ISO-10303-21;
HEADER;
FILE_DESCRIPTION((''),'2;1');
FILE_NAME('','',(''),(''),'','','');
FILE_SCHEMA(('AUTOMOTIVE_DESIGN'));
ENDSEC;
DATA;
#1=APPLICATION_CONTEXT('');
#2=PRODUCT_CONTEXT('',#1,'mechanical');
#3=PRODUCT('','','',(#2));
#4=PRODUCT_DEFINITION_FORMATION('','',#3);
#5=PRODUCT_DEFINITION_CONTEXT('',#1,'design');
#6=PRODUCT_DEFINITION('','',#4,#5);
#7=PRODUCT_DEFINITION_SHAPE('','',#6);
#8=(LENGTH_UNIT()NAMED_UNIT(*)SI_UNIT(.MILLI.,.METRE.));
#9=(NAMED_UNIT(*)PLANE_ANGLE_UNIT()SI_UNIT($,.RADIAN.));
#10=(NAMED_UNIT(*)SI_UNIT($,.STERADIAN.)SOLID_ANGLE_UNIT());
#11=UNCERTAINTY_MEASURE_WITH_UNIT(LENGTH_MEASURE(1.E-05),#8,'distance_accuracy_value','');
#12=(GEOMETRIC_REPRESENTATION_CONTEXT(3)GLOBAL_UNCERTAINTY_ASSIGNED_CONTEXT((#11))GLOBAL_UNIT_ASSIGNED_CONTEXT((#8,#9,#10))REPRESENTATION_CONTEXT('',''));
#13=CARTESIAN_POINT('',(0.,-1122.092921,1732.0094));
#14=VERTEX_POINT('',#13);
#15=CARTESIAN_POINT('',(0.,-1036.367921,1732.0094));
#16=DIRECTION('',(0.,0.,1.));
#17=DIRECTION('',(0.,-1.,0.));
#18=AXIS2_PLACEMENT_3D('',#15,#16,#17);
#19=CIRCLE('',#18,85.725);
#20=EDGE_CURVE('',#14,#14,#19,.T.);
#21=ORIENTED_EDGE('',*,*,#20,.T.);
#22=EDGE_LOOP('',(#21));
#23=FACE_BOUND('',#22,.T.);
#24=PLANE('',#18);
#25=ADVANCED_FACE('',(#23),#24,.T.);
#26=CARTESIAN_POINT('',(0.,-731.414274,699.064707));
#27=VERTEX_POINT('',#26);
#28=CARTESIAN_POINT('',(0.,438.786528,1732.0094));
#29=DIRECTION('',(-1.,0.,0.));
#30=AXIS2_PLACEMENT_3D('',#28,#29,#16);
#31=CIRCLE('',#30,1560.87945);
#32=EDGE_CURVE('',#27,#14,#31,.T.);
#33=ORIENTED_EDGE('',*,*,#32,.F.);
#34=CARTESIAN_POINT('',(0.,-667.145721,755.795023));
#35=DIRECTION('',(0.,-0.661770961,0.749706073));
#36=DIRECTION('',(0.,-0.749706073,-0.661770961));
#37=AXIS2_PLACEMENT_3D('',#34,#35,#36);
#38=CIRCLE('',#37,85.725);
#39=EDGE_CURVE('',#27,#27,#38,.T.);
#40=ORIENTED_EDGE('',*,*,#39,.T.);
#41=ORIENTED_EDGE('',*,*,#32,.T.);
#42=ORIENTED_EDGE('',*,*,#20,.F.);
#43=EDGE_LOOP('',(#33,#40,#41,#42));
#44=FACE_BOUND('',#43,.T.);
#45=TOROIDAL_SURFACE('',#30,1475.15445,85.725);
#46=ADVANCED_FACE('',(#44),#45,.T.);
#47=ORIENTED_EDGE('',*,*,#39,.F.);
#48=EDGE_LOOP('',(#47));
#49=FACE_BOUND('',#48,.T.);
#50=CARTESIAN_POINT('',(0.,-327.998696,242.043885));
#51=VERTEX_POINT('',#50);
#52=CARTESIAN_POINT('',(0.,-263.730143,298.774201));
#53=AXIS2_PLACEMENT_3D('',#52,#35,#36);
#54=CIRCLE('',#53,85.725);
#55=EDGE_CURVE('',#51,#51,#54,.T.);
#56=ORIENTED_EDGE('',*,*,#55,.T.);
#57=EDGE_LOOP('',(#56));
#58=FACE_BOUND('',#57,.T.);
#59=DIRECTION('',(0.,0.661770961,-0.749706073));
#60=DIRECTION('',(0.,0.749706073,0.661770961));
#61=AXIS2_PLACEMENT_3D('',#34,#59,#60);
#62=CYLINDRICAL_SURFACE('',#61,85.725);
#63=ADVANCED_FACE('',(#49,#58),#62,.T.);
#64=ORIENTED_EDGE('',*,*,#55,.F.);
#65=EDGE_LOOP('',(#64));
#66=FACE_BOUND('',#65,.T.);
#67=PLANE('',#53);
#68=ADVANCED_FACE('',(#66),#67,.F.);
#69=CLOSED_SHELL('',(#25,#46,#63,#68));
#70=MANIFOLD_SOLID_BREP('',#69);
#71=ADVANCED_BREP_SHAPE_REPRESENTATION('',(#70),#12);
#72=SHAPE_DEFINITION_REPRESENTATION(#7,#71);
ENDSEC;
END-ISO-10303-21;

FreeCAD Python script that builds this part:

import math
import FreeCAD as App
import Part
import Sketcher
from FreeCAD import Vector
Q = App.Units.Quantity

doc = App.newDocument("Part")
body = doc.addObject("PartDesign::Body", "Body")

# Sketch on an angled plane
sketch1 = body.newObject("Sketcher::SketchObject", "Sketch")
sketch1.Placement = App.Placement(Vector(0, -263.730143, 298.774201), App.Rotation(Vector(1, 0, 0), Vector(0, 0.749706073, 0.661770961), Vector(0, -0.661770961, 0.749706073), "ZXY"))
sketch1.addGeometry(Part.Circle(Vector(0, 0, 0), Vector(0, 0, 1), 86), False)
sketch1.addConstraint([
    Sketcher.Constraint("Coincident", 0, 3, -1, 1),
    Sketcher.Constraint("Diameter", 0, Q("6.75 in")),
])

# Sketch on YZ plane
sketch2 = body.newObject("Sketcher::SketchObject", "Sketch001")
sketch2.AttachmentSupport = (doc.getObject("YZ_Plane"), [""])
sketch2.MapMode = "FlatFace"
sketch2.addGeometry([
    Part.LineSegment(Vector(-264, 299, 0), Vector(-667, 756, 0)),
    Part.ArcOfCircle(Part.Circle(Vector(439, 1732, 0), Vector(0, 0, 1), 1475), math.radians(180), math.radians(221)),
], False)
sketch2.addConstraint([
    Sketcher.Constraint("Tangent", 0, 2, 1, 2),
    Sketcher.Constraint("Distance", 0, Q("24 in")),
    Sketcher.Constraint("Radius", 1, Q("1475.15445 mm")),
    Sketcher.Constraint("DistanceY", -1, 1, 1, 3, Q("1732.0094 mm")),
    Sketcher.Constraint("DistanceY", -1, 1, 0, 1, Q("298.774201 mm")),
    Sketcher.Constraint("DistanceY", -1, 1, 1, 1, Q("1732.0094 mm")),
    Sketcher.Constraint("DistanceX", -1, 1, 1, 3, Q("438.786528 mm")),
])
doc.recompute()

additivepipe = body.newObject("PartDesign::AdditivePipe", "AdditivePipe")
additivepipe.Profile = sketch1
additivepipe.Spine = (sketch2, ["Edge1", "Edge2"])

doc.recompute()
